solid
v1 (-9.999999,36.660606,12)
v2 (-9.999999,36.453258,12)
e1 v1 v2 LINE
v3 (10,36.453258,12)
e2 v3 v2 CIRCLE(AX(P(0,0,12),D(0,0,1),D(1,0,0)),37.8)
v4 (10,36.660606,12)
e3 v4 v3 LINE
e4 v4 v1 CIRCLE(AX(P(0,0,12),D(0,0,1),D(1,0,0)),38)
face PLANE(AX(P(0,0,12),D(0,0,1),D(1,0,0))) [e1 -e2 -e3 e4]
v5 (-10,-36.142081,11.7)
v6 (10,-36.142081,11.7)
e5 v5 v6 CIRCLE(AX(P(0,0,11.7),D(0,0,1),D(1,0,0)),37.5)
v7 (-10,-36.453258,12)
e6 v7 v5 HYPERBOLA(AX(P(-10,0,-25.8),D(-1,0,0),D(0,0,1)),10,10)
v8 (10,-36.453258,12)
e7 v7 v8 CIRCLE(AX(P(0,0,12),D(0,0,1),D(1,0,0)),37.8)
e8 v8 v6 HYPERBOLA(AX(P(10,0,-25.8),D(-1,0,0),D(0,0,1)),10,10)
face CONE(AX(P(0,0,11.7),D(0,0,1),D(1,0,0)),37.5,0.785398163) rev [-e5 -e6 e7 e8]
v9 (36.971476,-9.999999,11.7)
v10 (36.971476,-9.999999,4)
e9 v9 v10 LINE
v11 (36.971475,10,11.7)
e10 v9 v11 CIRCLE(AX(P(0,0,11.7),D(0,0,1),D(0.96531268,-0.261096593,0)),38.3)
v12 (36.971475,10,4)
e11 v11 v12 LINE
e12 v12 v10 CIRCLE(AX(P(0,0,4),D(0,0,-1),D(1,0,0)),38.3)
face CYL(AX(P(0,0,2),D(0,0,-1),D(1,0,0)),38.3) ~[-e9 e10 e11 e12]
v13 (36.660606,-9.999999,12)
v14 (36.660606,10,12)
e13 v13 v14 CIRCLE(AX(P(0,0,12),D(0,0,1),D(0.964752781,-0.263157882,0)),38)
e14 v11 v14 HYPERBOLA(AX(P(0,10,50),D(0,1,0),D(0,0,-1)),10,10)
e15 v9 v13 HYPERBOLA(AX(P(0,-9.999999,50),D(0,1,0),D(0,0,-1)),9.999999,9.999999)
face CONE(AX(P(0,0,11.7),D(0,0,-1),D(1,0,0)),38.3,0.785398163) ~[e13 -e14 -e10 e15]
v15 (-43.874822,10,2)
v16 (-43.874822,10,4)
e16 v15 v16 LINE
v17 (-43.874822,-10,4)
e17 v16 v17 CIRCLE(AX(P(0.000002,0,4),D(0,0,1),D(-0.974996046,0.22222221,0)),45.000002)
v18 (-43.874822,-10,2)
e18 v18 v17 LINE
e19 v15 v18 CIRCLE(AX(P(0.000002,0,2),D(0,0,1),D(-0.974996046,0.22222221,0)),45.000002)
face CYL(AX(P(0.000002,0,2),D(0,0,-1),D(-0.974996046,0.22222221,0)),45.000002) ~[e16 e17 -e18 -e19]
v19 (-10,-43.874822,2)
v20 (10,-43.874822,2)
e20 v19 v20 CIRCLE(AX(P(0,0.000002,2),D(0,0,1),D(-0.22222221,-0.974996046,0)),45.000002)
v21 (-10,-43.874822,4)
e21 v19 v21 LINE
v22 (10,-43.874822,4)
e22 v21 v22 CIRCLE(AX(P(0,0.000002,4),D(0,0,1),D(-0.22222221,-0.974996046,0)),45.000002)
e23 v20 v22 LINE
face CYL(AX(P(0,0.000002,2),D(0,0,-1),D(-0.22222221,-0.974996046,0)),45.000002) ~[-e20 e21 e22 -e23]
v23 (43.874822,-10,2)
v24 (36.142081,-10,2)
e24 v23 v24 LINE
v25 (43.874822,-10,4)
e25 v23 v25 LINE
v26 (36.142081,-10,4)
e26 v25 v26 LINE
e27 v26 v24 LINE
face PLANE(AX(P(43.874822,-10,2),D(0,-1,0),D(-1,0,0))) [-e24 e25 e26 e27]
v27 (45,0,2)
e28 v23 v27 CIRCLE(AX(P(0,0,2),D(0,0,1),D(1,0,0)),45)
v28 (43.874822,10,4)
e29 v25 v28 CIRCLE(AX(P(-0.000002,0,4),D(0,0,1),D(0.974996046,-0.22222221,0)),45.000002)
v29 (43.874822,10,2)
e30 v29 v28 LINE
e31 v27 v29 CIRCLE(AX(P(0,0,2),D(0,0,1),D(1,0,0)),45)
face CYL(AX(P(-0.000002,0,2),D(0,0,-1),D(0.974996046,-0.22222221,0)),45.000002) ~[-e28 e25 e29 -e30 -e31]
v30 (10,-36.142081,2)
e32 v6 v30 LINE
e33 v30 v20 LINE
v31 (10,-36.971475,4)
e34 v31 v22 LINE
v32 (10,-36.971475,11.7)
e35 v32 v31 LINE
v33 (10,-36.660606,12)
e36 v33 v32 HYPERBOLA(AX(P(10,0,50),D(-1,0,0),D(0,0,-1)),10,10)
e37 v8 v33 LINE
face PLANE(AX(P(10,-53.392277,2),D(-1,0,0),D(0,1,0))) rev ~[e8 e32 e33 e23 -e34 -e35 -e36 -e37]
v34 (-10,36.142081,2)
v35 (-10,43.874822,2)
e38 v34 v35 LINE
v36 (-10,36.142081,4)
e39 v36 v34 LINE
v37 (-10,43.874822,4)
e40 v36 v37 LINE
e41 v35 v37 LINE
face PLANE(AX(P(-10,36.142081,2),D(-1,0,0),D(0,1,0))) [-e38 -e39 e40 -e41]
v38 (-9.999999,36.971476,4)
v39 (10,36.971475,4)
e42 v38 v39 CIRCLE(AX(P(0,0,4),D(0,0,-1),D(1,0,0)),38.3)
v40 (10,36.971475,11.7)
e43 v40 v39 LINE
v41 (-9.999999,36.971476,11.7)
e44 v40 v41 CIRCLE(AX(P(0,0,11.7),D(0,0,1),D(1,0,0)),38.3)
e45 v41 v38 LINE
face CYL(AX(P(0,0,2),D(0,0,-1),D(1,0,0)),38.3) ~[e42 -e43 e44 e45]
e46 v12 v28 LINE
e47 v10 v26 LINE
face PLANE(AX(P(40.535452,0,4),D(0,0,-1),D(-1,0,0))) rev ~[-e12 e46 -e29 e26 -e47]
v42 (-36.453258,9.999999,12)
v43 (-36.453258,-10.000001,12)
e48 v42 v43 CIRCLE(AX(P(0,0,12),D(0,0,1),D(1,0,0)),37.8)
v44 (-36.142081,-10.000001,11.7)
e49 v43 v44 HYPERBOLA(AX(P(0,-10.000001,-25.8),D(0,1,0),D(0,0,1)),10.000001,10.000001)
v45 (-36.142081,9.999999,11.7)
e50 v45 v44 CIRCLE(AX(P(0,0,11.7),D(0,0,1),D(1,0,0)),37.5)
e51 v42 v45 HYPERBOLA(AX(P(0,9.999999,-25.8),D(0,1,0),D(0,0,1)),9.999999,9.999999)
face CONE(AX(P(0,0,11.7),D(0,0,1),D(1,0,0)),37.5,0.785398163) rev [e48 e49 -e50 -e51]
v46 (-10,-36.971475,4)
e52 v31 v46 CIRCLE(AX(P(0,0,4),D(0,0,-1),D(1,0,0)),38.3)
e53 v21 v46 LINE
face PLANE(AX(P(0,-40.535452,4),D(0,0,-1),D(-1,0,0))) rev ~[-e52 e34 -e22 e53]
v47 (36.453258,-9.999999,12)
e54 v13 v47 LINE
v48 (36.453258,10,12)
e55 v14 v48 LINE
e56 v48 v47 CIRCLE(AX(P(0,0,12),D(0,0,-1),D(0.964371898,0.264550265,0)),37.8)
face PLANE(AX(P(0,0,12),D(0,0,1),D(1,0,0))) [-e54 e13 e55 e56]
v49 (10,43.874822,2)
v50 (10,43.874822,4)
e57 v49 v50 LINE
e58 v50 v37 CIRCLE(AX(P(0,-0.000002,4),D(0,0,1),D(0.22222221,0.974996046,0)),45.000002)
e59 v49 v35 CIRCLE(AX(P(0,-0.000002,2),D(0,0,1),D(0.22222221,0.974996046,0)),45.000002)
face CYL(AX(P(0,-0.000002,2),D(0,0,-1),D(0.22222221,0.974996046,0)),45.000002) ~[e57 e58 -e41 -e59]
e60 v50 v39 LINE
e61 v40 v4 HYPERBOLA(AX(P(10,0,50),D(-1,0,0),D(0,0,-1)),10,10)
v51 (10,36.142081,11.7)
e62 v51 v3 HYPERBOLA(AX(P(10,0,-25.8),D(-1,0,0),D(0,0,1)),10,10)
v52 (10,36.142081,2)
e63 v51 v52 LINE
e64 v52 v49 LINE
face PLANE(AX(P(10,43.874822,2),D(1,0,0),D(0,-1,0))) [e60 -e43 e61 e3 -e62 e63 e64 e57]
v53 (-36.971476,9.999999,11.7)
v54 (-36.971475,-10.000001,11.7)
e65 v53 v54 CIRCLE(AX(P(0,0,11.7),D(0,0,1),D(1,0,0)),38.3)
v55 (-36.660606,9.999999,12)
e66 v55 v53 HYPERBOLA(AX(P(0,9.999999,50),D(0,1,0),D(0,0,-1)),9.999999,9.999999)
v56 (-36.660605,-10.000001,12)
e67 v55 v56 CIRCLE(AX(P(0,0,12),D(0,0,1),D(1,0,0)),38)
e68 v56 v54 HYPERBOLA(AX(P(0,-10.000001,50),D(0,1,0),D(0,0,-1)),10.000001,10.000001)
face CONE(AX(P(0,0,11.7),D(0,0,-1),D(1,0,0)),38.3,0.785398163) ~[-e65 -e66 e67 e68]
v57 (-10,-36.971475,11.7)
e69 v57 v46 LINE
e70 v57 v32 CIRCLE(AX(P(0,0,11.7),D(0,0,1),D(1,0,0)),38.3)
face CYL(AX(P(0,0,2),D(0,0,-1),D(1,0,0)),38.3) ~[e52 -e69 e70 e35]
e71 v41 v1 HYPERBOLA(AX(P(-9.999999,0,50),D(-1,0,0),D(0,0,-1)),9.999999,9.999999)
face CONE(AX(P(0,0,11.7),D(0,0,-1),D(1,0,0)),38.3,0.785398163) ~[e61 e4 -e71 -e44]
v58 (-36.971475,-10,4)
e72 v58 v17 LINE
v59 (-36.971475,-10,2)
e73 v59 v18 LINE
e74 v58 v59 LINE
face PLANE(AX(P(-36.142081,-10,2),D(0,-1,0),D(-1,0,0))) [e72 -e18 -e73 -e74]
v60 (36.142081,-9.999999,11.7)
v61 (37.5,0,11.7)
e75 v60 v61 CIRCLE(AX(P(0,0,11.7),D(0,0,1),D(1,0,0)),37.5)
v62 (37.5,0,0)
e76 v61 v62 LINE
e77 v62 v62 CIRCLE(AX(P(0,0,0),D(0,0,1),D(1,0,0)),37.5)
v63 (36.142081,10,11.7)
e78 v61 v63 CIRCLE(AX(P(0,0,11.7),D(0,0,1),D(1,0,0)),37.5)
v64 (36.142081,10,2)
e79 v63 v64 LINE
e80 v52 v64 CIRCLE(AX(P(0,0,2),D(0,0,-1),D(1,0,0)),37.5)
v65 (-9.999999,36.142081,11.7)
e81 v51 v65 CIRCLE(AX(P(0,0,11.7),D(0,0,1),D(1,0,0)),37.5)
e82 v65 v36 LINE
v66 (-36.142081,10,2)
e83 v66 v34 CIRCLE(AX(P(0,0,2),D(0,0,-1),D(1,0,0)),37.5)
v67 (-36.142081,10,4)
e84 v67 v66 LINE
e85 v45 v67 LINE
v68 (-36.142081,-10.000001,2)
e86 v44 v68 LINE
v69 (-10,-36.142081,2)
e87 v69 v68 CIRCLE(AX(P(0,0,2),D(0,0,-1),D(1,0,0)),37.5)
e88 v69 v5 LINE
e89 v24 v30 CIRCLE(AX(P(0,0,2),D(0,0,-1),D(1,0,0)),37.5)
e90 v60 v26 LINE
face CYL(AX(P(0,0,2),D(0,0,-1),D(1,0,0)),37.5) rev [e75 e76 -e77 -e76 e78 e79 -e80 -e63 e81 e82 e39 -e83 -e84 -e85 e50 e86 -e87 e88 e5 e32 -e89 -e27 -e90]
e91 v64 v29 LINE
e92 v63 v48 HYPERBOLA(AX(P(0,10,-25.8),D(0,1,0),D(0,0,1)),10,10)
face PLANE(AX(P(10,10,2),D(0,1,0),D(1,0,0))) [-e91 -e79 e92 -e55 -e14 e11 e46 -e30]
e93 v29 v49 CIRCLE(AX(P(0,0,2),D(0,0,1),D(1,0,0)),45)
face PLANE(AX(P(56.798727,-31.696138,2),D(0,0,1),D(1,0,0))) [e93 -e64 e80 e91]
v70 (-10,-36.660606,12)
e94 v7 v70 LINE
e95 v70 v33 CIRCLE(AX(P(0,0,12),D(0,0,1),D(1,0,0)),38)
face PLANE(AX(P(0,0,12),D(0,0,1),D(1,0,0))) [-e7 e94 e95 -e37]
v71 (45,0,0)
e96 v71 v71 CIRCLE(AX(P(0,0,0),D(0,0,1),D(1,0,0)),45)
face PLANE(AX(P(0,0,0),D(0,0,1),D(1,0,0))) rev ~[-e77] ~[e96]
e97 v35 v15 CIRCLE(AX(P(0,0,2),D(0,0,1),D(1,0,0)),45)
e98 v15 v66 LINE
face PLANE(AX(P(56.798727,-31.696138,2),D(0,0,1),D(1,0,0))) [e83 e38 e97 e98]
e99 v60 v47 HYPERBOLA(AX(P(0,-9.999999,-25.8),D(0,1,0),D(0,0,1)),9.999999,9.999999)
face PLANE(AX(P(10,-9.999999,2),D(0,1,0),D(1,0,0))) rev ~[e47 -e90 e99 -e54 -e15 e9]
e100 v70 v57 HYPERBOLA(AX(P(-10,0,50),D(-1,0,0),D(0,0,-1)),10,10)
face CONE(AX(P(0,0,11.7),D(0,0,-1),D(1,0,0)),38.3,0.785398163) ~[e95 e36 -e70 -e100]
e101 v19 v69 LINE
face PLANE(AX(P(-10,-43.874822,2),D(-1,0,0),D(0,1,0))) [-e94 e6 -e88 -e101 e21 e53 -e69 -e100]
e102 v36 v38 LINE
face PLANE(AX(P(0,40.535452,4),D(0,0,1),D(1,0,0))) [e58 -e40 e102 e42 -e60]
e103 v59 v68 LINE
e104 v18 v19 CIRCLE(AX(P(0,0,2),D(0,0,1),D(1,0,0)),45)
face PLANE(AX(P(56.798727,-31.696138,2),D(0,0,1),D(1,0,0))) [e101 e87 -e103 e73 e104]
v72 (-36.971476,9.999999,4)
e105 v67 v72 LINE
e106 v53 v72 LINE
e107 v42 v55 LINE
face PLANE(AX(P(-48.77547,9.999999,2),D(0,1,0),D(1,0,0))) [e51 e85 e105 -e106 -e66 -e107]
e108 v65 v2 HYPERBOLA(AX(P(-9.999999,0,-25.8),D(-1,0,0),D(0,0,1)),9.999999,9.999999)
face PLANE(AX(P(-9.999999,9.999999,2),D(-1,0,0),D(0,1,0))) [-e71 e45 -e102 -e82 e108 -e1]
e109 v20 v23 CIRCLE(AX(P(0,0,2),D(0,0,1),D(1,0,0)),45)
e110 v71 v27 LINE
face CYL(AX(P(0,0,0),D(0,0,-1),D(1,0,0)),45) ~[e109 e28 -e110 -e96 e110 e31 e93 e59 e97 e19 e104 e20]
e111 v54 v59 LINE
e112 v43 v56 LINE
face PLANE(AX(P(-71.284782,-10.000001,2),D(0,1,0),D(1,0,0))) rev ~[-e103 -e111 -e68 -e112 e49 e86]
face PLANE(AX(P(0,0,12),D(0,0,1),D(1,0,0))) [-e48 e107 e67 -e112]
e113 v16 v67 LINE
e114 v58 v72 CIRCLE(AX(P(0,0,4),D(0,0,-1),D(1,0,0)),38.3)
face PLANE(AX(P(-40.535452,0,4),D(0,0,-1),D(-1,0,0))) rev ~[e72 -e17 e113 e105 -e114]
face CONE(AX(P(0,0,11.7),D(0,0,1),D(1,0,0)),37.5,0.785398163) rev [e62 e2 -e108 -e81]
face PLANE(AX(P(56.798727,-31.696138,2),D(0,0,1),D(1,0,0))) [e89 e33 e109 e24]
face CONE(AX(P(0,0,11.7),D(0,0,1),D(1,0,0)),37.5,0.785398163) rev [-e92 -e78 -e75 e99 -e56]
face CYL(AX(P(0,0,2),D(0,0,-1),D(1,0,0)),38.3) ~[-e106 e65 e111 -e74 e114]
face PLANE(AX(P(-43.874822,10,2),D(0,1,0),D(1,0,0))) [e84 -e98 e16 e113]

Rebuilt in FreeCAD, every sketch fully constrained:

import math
import FreeCAD as App
import Part
import Sketcher
from FreeCAD import Vector


def edges_at(feature, points):
    """Names of the edges that pass closest to the given points."""
    edges = feature.Shape.Edges
    near = lambda p: min(range(len(edges)), key=lambda i: edges[i].distToShape(Part.Vertex(*p))[0])
    return sorted({f"Edge{near(p) + 1}" for p in points})

doc = App.newDocument("Part")
body = doc.addObject("PartDesign::Body", "Body")

# Sketch on XY plane
sketch1 = doc.addObject("Sketcher::SketchObject", "Sketch")
body.addObject(sketch1)
sketch1.AttachmentSupport = (doc.XY_Plane, [""])
sketch1.MapMode = "FlatFace"
sketch1.addGeometry([
    Part.Circle(Vector(0, 0, 0), Vector(0, 0, 1), 45),
    Part.Circle(Vector(0, 0, 0), Vector(0, 0, 1), 37.5),
], False)
sketch1.addConstraint([
    Sketcher.Constraint("Coincident", 0, 3, -1, 1),
    Sketcher.Constraint("Coincident", 1, 3, -1, 1),
    Sketcher.Constraint("Diameter", 0, 90.0),
    Sketcher.Constraint("Diameter", 1, 75.0),
])
pad1 = doc.addObject("PartDesign::Pad", "Pad")
body.addObject(pad1)
pad1.Profile = sketch1
pad1.Length = 2

# Sketch on XY plane
sketch2 = doc.addObject("Sketcher::SketchObject", "Sketch001")
body.addObject(sketch2)
sketch2.AttachmentSupport = (doc.XY_Plane, [""])
sketch2.MapMode = "FlatFace"
sketch2.AttachmentOffset = App.Placement(Vector(0, 0, 2), App.Rotation())
sketch2.addGeometry([
    Part.Circle(Vector(0, 0, 0), Vector(0, 0, 1), 38.3),
    Part.Circle(Vector(0, 0, 0), Vector(0, 0, 1), 37.5),
], False)
sketch2.addConstraint([
    Sketcher.Constraint("Coincident", 0, 3, -1, 1),
    Sketcher.Constraint("Coincident", 1, 3, -1, 1),
    Sketcher.Constraint("Diameter", 1, 75.0),
    Sketcher.Constraint("Diameter", 0, 76.6),
])
pad2 = doc.addObject("PartDesign::Pad", "Pad001")
body.addObject(pad2)
pad2.Profile = sketch2
pad2.Length = 10
doc.recompute()

chamfer = doc.addObject("PartDesign::Chamfer", "Chamfer")
body.addObject(chamfer)
chamfer.Base = (pad2, edges_at(pad2, [(-37.5, 0, 12)]))
chamfer.Size = 0.3
doc.recompute()

chamfer2 = doc.addObject("PartDesign::Chamfer", "Chamfer001")
body.addObject(chamfer2)
chamfer2.Base = (chamfer, edges_at(chamfer, [(-38.3, 0, 12)]))
chamfer2.Size = 0.3

# Sketch on XY plane
sketch3 = doc.addObject("Sketcher::SketchObject", "Sketch002")
body.addObject(sketch3)
sketch3.AttachmentSupport = (doc.XY_Plane, [""])
sketch3.MapMode = "FlatFace"
sketch3.AttachmentOffset = App.Placement(Vector(0, 0, 2), App.Rotation())
sketch3.addGeometry([
    Part.LineSegment(Vector(-48.77547, 51.534115, 0), Vector(-48.77547, 9.999999, 0)),  # 0
    Part.LineSegment(Vector(-48.77547, 9.999999, 0), Vector(-9.999999, 9.999999, 0)),  # 1
    Part.LineSegment(Vector(-9.999999, 9.999999, 0), Vector(-9.999999, 51.534115, 0)),  # 2
    Part.LineSegment(Vector(-9.999999, 51.534115, 0), Vector(-48.77547, 51.534115, 0)),  # 3
    Part.LineSegment(Vector(10, 63.076206, 0), Vector(10, 10, 0)),  # 4
    Part.LineSegment(Vector(10, 10, 0), Vector(102.953724, 10, 0)),  # 5
    Part.LineSegment(Vector(102.953724, 10, 0), Vector(102.953724, 63.076206, 0)),  # 6
    Part.LineSegment(Vector(102.953724, 63.076206, 0), Vector(10, 63.076206, 0)),  # 7
    Part.LineSegment(Vector(10, -9.999999, 0), Vector(10, -53.392277, 0)),  # 8
    Part.LineSegment(Vector(10, -53.392277, 0), Vector(103.597454, -53.392277, 0)),  # 9
    Part.LineSegment(Vector(103.597454, -53.392277, 0), Vector(103.597454, -9.999999, 0)),  # 10
    Part.LineSegment(Vector(103.597454, -9.999999, 0), Vector(10, -9.999999, 0)),  # 11
    Part.LineSegment(Vector(-71.284782, -10.000001, 0), Vector(-71.284782, -68.71396, 0)),  # 12
    Part.LineSegment(Vector(-71.284782, -68.71396, 0), Vector(-10, -68.71396, 0)),  # 13
    Part.LineSegment(Vector(-10, -68.71396, 0), Vector(-10, -10.000001, 0)),  # 14
    Part.LineSegment(Vector(-10, -10.000001, 0), Vector(-71.284782, -10.000001, 0)),  # 15
], False)
sketch3.addConstraint([
    Sketcher.Constraint("Coincident", 0, 2, 1, 1),
    Sketcher.Constraint("Coincident", 1, 2, 2, 1),
    Sketcher.Constraint("Coincident", 2, 2, 3, 1),
    Sketcher.Constraint("Coincident", 3, 2, 0, 1),
    Sketcher.Constraint("Coincident", 4, 2, 5, 1),
    Sketcher.Constraint("Coincident", 5, 2, 6, 1),
    Sketcher.Constraint("Coincident", 6, 2, 7, 1),
    Sketcher.Constraint("Coincident", 7, 2, 4, 1),
    Sketcher.Constraint("Coincident", 8, 2, 9, 1),
    Sketcher.Constraint("Coincident", 9, 2, 10, 1),
    Sketcher.Constraint("Coincident", 10, 2, 11, 1),
    Sketcher.Constraint("Coincident", 11, 2, 8, 1),
    Sketcher.Constraint("Coincident", 12, 2, 13, 1),
    Sketcher.Constraint("Coincident", 13, 2, 14, 1),
    Sketcher.Constraint("Coincident", 14, 2, 15, 1),
    Sketcher.Constraint("Coincident", 15, 2, 12, 1),
    Sketcher.Constraint("Vertical", 0),
    Sketcher.Constraint("Horizontal", 1),
    Sketcher.Constraint("Vertical", 2),
    Sketcher.Constraint("Horizontal", 3),
    Sketcher.Constraint("Vertical", 4),
    Sketcher.Constraint("Horizontal", 5),
    Sketcher.Constraint("Vertical", 6),
    Sketcher.Constraint("Horizontal", 7),
    Sketcher.Constraint("Vertical", 8),
    Sketcher.Constraint("Horizontal", 9),
    Sketcher.Constraint("Vertical", 10),
    Sketcher.Constraint("Horizontal", 11),
    Sketcher.Constraint("Vertical", 12),
    Sketcher.Constraint("Horizontal", 13),
    Sketcher.Constraint("Vertical", 14),
    Sketcher.Constraint("Horizontal", 15),
    Sketcher.Constraint("Symmetric", 1, 2, 11, 2, -1, 1),
    Sketcher.Constraint("Symmetric", 4, 2, 14, 2, -1, 1),
    Sketcher.Constraint("Symmetric", 1, 2, 4, 2, -2),
    Sketcher.Constraint("DistanceY", -1, 1, 0, 2, 9.999999),
    Sketcher.Constraint("DistanceX", 1, 2, -1, 1, 9.999999),
    Sketcher.Constraint("DistanceX", 1, 1, 1, 2, 38.775471),
    Sketcher.Constraint("DistanceY", 12, 2, 12, 1, 58.713959),
    Sketcher.Constraint("DistanceX", 5, 1, 5, 2, 92.953724),
    Sketcher.Constraint("DistanceX", 9, 1, 9, 2, 93.597454),
    Sketcher.Constraint("DistanceX", 13, 1, 13, 2, 61.284782),
    Sketcher.Constraint("DistanceY", 0, 2, 0, 1, 41.534115),
    Sketcher.Constraint("DistanceY", 4, 2, 4, 1, 53.076206),
    Sketcher.Constraint("DistanceY", 8, 2, 8, 1, 43.392277),
])
pocket1 = doc.addObject("PartDesign::Pocket", "Pocket")
body.addObject(pocket1)
pocket1.Profile = sketch3
pocket1.Type = "ThroughAll"
pocket1.Reversed = True

# Sketch on XY plane
sketch4 = doc.addObject("Sketcher::SketchObject", "Sketch003")
body.addObject(sketch4)
sketch4.AttachmentSupport = (doc.XY_Plane, [""])
sketch4.MapMode = "FlatFace"
sketch4.AttachmentOffset = App.Placement(Vector(0, 0, 2), App.Rotation())
sketch4.addGeometry([
    Part.ArcOfCircle(Part.Circle(Vector(0, -0.000002, 0), Vector(0, 0, 1), 45.000002), math.radians(77.160412), math.radians(102.839588)),  # 0
    Part.LineSegment(Vector(-10, 43.874822, 0), Vector(-10, 36.142081, 0)),  # 1
    Part.ArcOfCircle(Part.Circle(Vector(0, -0.000007, 0), Vector(0, 0, 1), 37.500007), math.radians(74.533993), math.radians(105.466007)),  # 2
    Part.LineSegment(Vector(10, 36.142081, 0), Vector(10, 43.874822, 0)),  # 3
    Part.LineSegment(Vector(-10, -36.142081, 0), Vector(-10, -43.874822, 0)),  # 4
    Part.ArcOfCircle(Part.Circle(Vector(0, 0.000002, 0), Vector(0, 0, 1), 45.000002), math.radians(-102.839588), math.radians(-77.160412)),  # 5
    Part.LineSegment(Vector(10, -43.874822, 0), Vector(10, -36.142081, 0)),  # 6
    Part.ArcOfCircle(Part.Circle(Vector(0, 0.000007, 0), Vector(0, 0, 1), 37.500007), math.radians(-105.466007), math.radians(-74.533993)),  # 7
    Part.LineSegment(Vector(-36.142081, 10, 0), Vector(-43.874822, 10, 0)),  # 8
    Part.ArcOfCircle(Part.Circle(Vector(0.000002, 0, 0), Vector(0, 0, 1), 45.000002), math.radians(167.160412), math.radians(192.839588)),  # 9
    Part.LineSegment(Vector(-43.874822, -10, 0), Vector(-36.142081, -10, 0)),  # 10
    Part.ArcOfCircle(Part.Circle(Vector(0.000007, 0, 0), Vector(0, 0, 1), 37.500007), math.radians(164.533993), math.radians(195.466007)),  # 11
    Part.LineSegment(Vector(36.142081, -10, 0), Vector(43.874822, -10, 0)),  # 12
    Part.ArcOfCircle(Part.Circle(Vector(-0.000002, 0, 0), Vector(0, 0, 1), 45.000002), math.radians(-12.839588), math.radians(12.839588)),  # 13
    Part.LineSegment(Vector(43.874822, 10, 0), Vector(36.142081, 10, 0)),  # 14
    Part.ArcOfCircle(Part.Circle(Vector(-0.000007, 0, 0), Vector(0, 0, 1), 37.500007), math.radians(-15.466007), math.radians(15.466007)),  # 15
], False)
sketch4.addConstraint([
    Sketcher.Constraint("Coincident", 0, 2, 1, 1),
    Sketcher.Constraint("Coincident", 1, 2, 2, 2),
    Sketcher.Constraint("Coincident", 2, 1, 3, 1),
    Sketcher.Constraint("Coincident", 3, 2, 0, 1),
    Sketcher.Constraint("Coincident", 4, 2, 5, 1),
    Sketcher.Constraint("Coincident", 5, 2, 6, 1),
    Sketcher.Constraint("Coincident", 6, 2, 7, 2),
    Sketcher.Constraint("Coincident", 7, 1, 4, 1),
    Sketcher.Constraint("Coincident", 8, 2, 9, 1),
    Sketcher.Constraint("Coincident", 9, 2, 10, 1),
    Sketcher.Constraint("Coincident", 10, 2, 11, 2),
    Sketcher.Constraint("Coincident", 11, 1, 8, 1),
    Sketcher.Constraint("Coincident", 12, 2, 13, 1),
    Sketcher.Constraint("Coincident", 13, 2, 14, 1),
    Sketcher.Constraint("Coincident", 14, 2, 15, 2),
    Sketcher.Constraint("Coincident", 15, 1, 12, 1),
    Sketcher.Constraint("Vertical", 1),
    Sketcher.Constraint("Vertical", 3),
    Sketcher.Constraint("Vertical", 4),
    Sketcher.Constraint("Vertical", 6),
    Sketcher.Constraint("Horizontal", 8),
    Sketcher.Constraint("Horizontal", 10),
    Sketcher.Constraint("Horizontal", 12),
    Sketcher.Constraint("Horizontal", 14),
    Sketcher.Constraint("Coincident", 0, 3, -1, 1),
    Sketcher.Constraint("Coincident", 2, 3, -1, 1),
    Sketcher.Constraint("Coincident", 5, 3, -1, 1),
    Sketcher.Constraint("Coincident", 7, 3, -1, 1),
    Sketcher.Constraint("Coincident", 9, 3, -1, 1),
    Sketcher.Constraint("Coincident", 11, 3, -1, 1),
    Sketcher.Constraint("Coincident", 13, 3, -1, 1),
    Sketcher.Constraint("Coincident", 15, 3, -1, 1),
    Sketcher.Constraint("Equal", 0, 5),
    Sketcher.Constraint("Equal", 2, 7),
    Sketcher.Constraint("Equal", 5, 9),
    Sketcher.Constraint("Equal", 7, 11),
    Sketcher.Constraint("Equal", 9, 13),
    Sketcher.Constraint("Equal", 11, 15),
    Sketcher.Constraint("Horizontal", 1, 2, 2, 1),
    Sketcher.Constraint("Horizontal", 4, 2, 5, 2),
    Sketcher.Constraint("Horizontal", 10, 2, 12, 2),
    Sketcher.Constraint("Horizontal", 11, 1, 13, 2),
    Sketcher.Constraint("Vertical", 1, 2, 4, 2),
    Sketcher.Constraint("Vertical", 8, 2, 9, 2),
    Sketcher.Constraint("Equal", 14, 1),
    Sketcher.Constraint("DistanceX", 0, 2, -1, 1, 10.0),
    Sketcher.Constraint("Radius", 0, 45.000002),
    Sketcher.Constraint("Radius", 2, 37.500007),
])
pad3 = doc.addObject("PartDesign::Pad", "Pad002")
body.addObject(pad3)
pad3.Profile = sketch4
pad3.Length = 2

doc.recompute()
